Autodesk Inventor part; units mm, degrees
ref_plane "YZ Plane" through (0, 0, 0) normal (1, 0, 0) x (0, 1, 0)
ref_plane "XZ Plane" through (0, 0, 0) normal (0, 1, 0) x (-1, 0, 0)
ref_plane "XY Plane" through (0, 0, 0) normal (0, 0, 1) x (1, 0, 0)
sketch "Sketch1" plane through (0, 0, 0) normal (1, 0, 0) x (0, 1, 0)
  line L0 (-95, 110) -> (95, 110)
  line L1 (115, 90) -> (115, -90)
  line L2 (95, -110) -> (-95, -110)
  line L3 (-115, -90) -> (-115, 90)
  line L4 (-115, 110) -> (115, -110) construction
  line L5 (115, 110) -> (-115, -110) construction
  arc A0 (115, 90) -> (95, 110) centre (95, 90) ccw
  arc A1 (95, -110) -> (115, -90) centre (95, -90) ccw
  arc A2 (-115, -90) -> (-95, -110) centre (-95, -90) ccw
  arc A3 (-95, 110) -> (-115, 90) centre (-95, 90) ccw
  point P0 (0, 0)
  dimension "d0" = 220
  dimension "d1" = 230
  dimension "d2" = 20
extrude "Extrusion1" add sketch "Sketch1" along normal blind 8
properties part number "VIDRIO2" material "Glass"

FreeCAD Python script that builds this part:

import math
import FreeCAD as App
import Part
import Sketcher

V = App.Vector
Q = App.Units.Quantity

doc = App.newDocument("Part")
params = doc.addObject("Spreadsheet::Sheet", "Params")
for row, (alias, value) in enumerate([
    ("sketch1_radius", "20 mm"),
    ("sketch1_width", "190 mm"),
    ("sketch1_height", "180 mm"),
    ("pad1_length", "8 mm"),
], start=1):
    params.set(f"A{row}", alias)
    params.set(f"B{row}", "=" + value)
    params.setAlias(f"B{row}", alias)

body = doc.addObject("PartDesign::Body", "Body")

# Sketch on YZ plane
sketch1 = doc.addObject("Sketcher::SketchObject", "Sketch")
body.addObject(sketch1)
sketch1.AttachmentSupport = (doc.YZ_Plane, [""])
sketch1.MapMode = "FlatFace"
sketch1.addGeometry([
    Part.LineSegment(V(95, 110, 0), V(-95, 110, 0)),  # 0
    Part.ArcOfCircle(Part.Circle(V(-95, 90, 0), V(0, 0, 1), 20), math.radians(90), math.radians(180)),  # 1
    Part.LineSegment(V(-115, 90, 0), V(-115, -90, 0)),  # 2
    Part.ArcOfCircle(Part.Circle(V(-95, -90, 0), V(0, 0, 1), 20), math.radians(180), math.radians(270)),  # 3
    Part.LineSegment(V(-95, -110, 0), V(95, -110, 0)),  # 4
    Part.ArcOfCircle(Part.Circle(V(95, -90, 0), V(0, 0, 1), 20), math.radians(-90), math.radians(0)),  # 5
    Part.LineSegment(V(115, -90, 0), V(115, 90, 0)),  # 6
    Part.ArcOfCircle(Part.Circle(V(95, 90, 0), V(0, 0, 1), 20), math.radians(0), math.radians(90)),  # 7
], False)
sketch1.addConstraint([
    Sketcher.Constraint("Tangent", 0, 2, 1, 1),
    Sketcher.Constraint("Tangent", 1, 2, 2, 1),
    Sketcher.Constraint("Tangent", 2, 2, 3, 1),
    Sketcher.Constraint("Tangent", 3, 2, 4, 1),
    Sketcher.Constraint("Tangent", 4, 2, 5, 1),
    Sketcher.Constraint("Tangent", 5, 2, 6, 1),
    Sketcher.Constraint("Tangent", 6, 2, 7, 1),
    Sketcher.Constraint("Tangent", 7, 2, 0, 1),
    Sketcher.Constraint("Horizontal", 0),
    Sketcher.Constraint("Vertical", 2),
    Sketcher.Constraint("Horizontal", 4),
    Sketcher.Constraint("Vertical", 6),
    Sketcher.Constraint("Equal", 1, 3),
    Sketcher.Constraint("Equal", 3, 5),
    Sketcher.Constraint("Equal", 5, 7),
    Sketcher.Constraint("Symmetric", 1, 3, 5, 3, -1, 1),
    Sketcher.Constraint("Radius", 1, Q("20 mm")),
    Sketcher.Constraint("DistanceX", 0, 2, 0, 1, Q("190 mm")),
    Sketcher.Constraint("DistanceY", 2, 2, 2, 1, Q("180 mm")),
])
sketch1.setExpression("Constraints[16]", "Params.sketch1_radius")
sketch1.setExpression("Constraints[17]", "Params.sketch1_width")
sketch1.setExpression("Constraints[18]", "Params.sketch1_height")
pad1 = doc.addObject("PartDesign::Pad", "Pad")
body.addObject(pad1)
pad1.Profile = sketch1
pad1.setExpression("Length", "Params.pad1_length")

doc.recompute()
